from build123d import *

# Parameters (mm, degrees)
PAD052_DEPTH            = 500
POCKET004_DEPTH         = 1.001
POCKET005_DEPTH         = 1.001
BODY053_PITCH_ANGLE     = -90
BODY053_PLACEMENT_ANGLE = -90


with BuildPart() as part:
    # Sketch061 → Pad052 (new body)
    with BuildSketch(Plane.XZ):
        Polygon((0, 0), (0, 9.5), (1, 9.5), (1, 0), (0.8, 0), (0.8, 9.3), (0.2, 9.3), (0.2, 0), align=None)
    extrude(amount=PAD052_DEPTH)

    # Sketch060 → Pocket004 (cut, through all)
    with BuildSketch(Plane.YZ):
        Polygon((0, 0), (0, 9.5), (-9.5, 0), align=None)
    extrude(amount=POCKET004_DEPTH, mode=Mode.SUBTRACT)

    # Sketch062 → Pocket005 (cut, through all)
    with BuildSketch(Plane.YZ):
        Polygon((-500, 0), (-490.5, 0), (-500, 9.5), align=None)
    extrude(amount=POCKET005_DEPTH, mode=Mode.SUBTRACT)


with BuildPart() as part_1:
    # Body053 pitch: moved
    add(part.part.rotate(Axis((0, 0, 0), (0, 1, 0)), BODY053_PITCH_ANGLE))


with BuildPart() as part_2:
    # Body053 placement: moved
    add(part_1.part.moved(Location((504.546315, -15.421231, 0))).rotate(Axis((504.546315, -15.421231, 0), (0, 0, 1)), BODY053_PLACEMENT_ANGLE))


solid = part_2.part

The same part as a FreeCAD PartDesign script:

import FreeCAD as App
import Part
import Sketcher
Q = App.Units.Quantity


def add_polygon(sketch, points):
    """Adds a closed chain of lines whose ends are joined by coincident constraints."""
    first, n = sketch.GeometryCount, len(points)
    for a, b in zip(points, points[1:] + points[:1]):
        sketch.addGeometry(Part.LineSegment(App.Vector(*a, 0), App.Vector(*b, 0)), False)
    for i in range(n):
        sketch.addConstraint(Sketcher.Constraint("Coincident", first + i, 2, first + (i + 1) % n, 1))

doc = App.newDocument("Part")
body = doc.addObject("PartDesign::Body", "Body")

# Sketch on XZ plane
sketch1 = doc.addObject("Sketcher::SketchObject", "Sketch")
body.addObject(sketch1)
sketch1.AttachmentSupport = (doc.XZ_Plane, [""])
sketch1.MapMode = "FlatFace"
add_polygon(sketch1, [(0, 9.5), (0, 0), (0.2, 0), (0.2, 9.3), (0.8, 9.3), (0.8, 0), (1, 0), (1, 9.5)])  # lines 0-7
sketch1.addConstraint([
    Sketcher.Constraint("Vertical", 0),
    Sketcher.Constraint("Horizontal", 1),
    Sketcher.Constraint("Vertical", 2),
    Sketcher.Constraint("Horizontal", 3),
    Sketcher.Constraint("Vertical", 4),
    Sketcher.Constraint("Horizontal", 5),
    Sketcher.Constraint("Vertical", 6),
    Sketcher.Constraint("Horizontal", 7),
    Sketcher.Constraint("Coincident", 0, 2, -1, 1),
    Sketcher.Constraint("PointOnObject", 4, 2, -1),
    Sketcher.Constraint("Equal", 1, 5),
    Sketcher.Constraint("DistanceX", 7, 2, 7, 1, Q("1 mm")),
    Sketcher.Constraint("DistanceX", 1, 1, 1, 2, Q("0.2 mm")),
    Sketcher.Constraint("DistanceY", 0, 2, 0, 1, Q("9.5 mm")),
    Sketcher.Constraint("DistanceY", 2, 1, 2, 2, Q("9.3 mm")),
])
pad1 = doc.addObject("PartDesign::Pad", "Pad")
body.addObject(pad1)
pad1.Profile = sketch1
pad1.Length = 500

# Sketch on YZ plane
sketch2 = doc.addObject("Sketcher::SketchObject", "Sketch001")
body.addObject(sketch2)
sketch2.AttachmentSupport = (doc.YZ_Plane, [""])
sketch2.MapMode = "FlatFace"
add_polygon(sketch2, [(0, 0), (0, 10), (-10, 0)])  # lines 0-2
sketch2.addConstraint([
    Sketcher.Constraint("Vertical", 0),
    Sketcher.Constraint("Horizontal", 2),
    Sketcher.Constraint("Coincident", 2, 2, -1, 1),
    Sketcher.Constraint("Equal", 2, 0),
    Sketcher.Constraint("DistanceX", 2, 1, 2, 2, Q("9.5 mm")),
])
pocket1 = doc.addObject("PartDesign::Pocket", "Pocket")
body.addObject(pocket1)
pocket1.Profile = sketch2
pocket1.Type = "ThroughAll"
pocket1.Reversed = True

# Sketch on YZ plane
sketch3 = doc.addObject("Sketcher::SketchObject", "Sketch002")
body.addObject(sketch3)
sketch3.AttachmentSupport = (doc.YZ_Plane, [""])
sketch3.MapMode = "FlatFace"
add_polygon(sketch3, [(-500, 0), (-490, 0), (-500, 10)])  # lines 0-2
sketch3.addConstraint([
    Sketcher.Constraint("Horizontal", 0),
    Sketcher.Constraint("Vertical", 2),
    Sketcher.Constraint("PointOnObject", 0, 2, -1),
    Sketcher.Constraint("Equal", 0, 2),
    Sketcher.Constraint("DistanceX", 0, 1, 0, 2, Q("9.5 mm")),
    Sketcher.Constraint("DistanceX", 1, 2, -1, 1, Q("500 mm")),
])
pocket2 = doc.addObject("PartDesign::Pocket", "Pocket001")
body.addObject(pocket2)
pocket2.Profile = sketch3
pocket2.Type = "ThroughAll"
pocket2.Reversed = True
body2 = doc.addObject("PartDesign::Body", "Body001")
doc.recompute()

body.Placement = App.Placement(App.Vector(0, 0, 0), App.Rotation(App.Vector(0, 1, 0), 270))
boolean = doc.addObject("PartDesign::Boolean", "Boolean")
body2.addObject(boolean)
boolean.Type = "Fuse"
boolean.addObjects([body])
body3 = doc.addObject("PartDesign::Body", "Body002")
doc.recompute()

body2.Placement = App.Placement(App.Vector(504.546315, -15.421231, 0), App.Rotation(App.Vector(0, 0, 1), 270))
boolean2 = doc.addObject("PartDesign::Boolean", "Boolean001")
body3.addObject(boolean2)
boolean2.Type = "Fuse"
boolean2.addObjects([body2])

doc.recompute()
